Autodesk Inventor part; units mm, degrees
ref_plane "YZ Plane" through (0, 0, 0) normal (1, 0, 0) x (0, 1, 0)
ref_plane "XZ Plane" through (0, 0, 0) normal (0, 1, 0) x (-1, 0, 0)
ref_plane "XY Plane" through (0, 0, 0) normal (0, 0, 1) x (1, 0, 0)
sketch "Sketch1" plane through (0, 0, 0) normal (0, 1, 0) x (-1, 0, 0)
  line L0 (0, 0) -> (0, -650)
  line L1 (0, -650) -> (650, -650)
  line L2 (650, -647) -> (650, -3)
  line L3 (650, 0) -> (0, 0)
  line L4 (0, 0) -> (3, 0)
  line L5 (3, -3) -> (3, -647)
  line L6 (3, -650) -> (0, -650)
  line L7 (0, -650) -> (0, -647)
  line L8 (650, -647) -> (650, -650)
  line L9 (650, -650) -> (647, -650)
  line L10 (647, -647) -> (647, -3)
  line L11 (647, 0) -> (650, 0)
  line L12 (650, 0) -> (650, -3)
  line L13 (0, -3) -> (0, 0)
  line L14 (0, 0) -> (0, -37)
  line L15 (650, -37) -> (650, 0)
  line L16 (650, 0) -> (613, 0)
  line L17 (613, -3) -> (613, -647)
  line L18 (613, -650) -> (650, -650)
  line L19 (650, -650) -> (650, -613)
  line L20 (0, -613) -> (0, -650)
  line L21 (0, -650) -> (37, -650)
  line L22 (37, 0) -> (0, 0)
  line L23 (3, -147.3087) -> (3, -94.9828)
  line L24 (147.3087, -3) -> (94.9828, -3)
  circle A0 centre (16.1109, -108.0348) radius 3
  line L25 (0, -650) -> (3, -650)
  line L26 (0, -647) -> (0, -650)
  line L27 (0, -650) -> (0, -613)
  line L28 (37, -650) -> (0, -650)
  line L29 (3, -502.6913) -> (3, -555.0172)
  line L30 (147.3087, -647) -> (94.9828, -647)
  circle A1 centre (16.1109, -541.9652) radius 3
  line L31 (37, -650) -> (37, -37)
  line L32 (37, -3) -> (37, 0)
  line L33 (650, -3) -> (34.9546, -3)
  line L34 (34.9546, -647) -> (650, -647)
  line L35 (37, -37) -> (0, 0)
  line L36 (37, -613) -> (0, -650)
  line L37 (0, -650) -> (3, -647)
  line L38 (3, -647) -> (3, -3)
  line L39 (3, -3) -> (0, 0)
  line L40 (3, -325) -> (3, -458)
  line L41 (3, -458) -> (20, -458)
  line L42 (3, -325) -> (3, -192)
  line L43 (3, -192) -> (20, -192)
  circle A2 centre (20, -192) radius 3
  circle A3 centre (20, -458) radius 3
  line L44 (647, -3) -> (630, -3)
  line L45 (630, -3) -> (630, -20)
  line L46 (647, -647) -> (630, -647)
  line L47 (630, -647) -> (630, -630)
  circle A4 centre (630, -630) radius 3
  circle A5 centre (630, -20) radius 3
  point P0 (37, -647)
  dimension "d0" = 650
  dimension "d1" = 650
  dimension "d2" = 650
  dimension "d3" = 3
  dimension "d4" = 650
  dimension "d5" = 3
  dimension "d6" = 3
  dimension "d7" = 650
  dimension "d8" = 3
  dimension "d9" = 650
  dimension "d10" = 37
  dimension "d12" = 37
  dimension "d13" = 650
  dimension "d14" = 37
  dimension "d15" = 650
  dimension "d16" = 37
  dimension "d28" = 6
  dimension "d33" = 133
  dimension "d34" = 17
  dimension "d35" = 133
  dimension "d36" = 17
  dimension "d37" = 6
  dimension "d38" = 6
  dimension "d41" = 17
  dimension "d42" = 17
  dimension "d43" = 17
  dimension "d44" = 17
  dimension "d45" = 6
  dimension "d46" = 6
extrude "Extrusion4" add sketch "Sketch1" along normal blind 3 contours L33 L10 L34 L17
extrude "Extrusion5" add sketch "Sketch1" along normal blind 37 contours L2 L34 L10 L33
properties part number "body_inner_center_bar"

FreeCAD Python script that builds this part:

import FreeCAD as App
import Part
import Sketcher
Q = App.Units.Quantity


def add_polygon(sketch, points):
    """Adds a closed chain of lines whose ends are joined by coincident constraints."""
    first, n = sketch.GeometryCount, len(points)
    for a, b in zip(points, points[1:] + points[:1]):
        sketch.addGeometry(Part.LineSegment(App.Vector(*a, 0), App.Vector(*b, 0)), False)
    for i in range(n):
        sketch.addConstraint(Sketcher.Constraint("Coincident", first + i, 2, first + (i + 1) % n, 1))

doc = App.newDocument("Part")
body = doc.addObject("PartDesign::Body", "Body")

# Sketch on XZ plane
sketch1 = doc.addObject("Sketcher::SketchObject", "Sketch")
body.addObject(sketch1)
sketch1.AttachmentSupport = (doc.XZ_Plane, [""])
sketch1.MapMode = "FlatFace"
add_polygon(sketch1, [(-630, -3), (-613, -3), (-613, -647), (-630, -647), (-647, -647), (-647, -3)])  # lines 0-5
sketch1.addGeometry(Part.Circle(App.Vector(-630, -630, 0), App.Vector(0, 0, 1), 3), False)  # 6
sketch1.addGeometry(Part.Circle(App.Vector(-630, -20, 0), App.Vector(0, 0, 1), 3), False)  # 7
sketch1.addConstraint([
    Sketcher.Constraint("Horizontal", 0),
    Sketcher.Constraint("Vertical", 1),
    Sketcher.Constraint("Horizontal", 2),
    Sketcher.Constraint("Horizontal", 3),
    Sketcher.Constraint("Vertical", 4),
    Sketcher.Constraint("Horizontal", 5),
    Sketcher.Constraint("Equal", 6, 7),
    Sketcher.Constraint("Vertical", 6, 3, 7, 3),
    Sketcher.Constraint("Vertical", 7, 3, 2, 2),
    Sketcher.Constraint("Vertical", 2, 2, 5, 2),
    Sketcher.Constraint("Equal", 2, 3),
    Sketcher.Constraint("Diameter", 6, Q("6 mm")),
    Sketcher.Constraint("DistanceX", 0, 1, 0, 2, Q("17 mm")),
    Sketcher.Constraint("DistanceY", 0, 2, -1, 1, Q("3 mm")),
    Sketcher.Constraint("DistanceY", 7, 3, 0, 2, Q("17 mm")),
    Sketcher.Constraint("DistanceY", 1, 2, 6, 3, Q("17 mm")),
    Sketcher.Constraint("DistanceY", 1, 2, 1, 1, Q("644 mm")),
    Sketcher.Constraint("DistanceX", 6, 3, -1, 1, Q("630 mm")),
])
pad1 = doc.addObject("PartDesign::Pad", "Pad")
body.addObject(pad1)
pad1.Profile = sketch1
pad1.Length = 3
pad1.Reversed = True

# Sketch on XZ plane
sketch2 = doc.addObject("Sketcher::SketchObject", "Sketch001")
body.addObject(sketch2)
sketch2.AttachmentSupport = (doc.XZ_Plane, [""])
sketch2.MapMode = "FlatFace"
add_polygon(sketch2, [(-650, -647), (-650, -3), (-647, -3), (-647, -647)])  # lines 0-3
sketch2.addConstraint([
    Sketcher.Constraint("Vertical", 0),
    Sketcher.Constraint("Horizontal", 1),
    Sketcher.Constraint("Vertical", 2),
    Sketcher.Constraint("Horizontal", 3),
    Sketcher.Constraint("DistanceX", 1, 1, 1, 2, Q("3 mm")),
    Sketcher.Constraint("DistanceX", 0, 2, -1, 1, Q("650 mm")),
    Sketcher.Constraint("DistanceY", 0, 2, -1, 1, Q("3 mm")),
    Sketcher.Constraint("DistanceY", 0, 1, 0, 2, Q("644 mm")),
])
pad2 = doc.addObject("PartDesign::Pad", "Pad001")
body.addObject(pad2)
pad2.Profile = sketch2
pad2.Length = 37
pad2.Reversed = True

doc.recompute()
